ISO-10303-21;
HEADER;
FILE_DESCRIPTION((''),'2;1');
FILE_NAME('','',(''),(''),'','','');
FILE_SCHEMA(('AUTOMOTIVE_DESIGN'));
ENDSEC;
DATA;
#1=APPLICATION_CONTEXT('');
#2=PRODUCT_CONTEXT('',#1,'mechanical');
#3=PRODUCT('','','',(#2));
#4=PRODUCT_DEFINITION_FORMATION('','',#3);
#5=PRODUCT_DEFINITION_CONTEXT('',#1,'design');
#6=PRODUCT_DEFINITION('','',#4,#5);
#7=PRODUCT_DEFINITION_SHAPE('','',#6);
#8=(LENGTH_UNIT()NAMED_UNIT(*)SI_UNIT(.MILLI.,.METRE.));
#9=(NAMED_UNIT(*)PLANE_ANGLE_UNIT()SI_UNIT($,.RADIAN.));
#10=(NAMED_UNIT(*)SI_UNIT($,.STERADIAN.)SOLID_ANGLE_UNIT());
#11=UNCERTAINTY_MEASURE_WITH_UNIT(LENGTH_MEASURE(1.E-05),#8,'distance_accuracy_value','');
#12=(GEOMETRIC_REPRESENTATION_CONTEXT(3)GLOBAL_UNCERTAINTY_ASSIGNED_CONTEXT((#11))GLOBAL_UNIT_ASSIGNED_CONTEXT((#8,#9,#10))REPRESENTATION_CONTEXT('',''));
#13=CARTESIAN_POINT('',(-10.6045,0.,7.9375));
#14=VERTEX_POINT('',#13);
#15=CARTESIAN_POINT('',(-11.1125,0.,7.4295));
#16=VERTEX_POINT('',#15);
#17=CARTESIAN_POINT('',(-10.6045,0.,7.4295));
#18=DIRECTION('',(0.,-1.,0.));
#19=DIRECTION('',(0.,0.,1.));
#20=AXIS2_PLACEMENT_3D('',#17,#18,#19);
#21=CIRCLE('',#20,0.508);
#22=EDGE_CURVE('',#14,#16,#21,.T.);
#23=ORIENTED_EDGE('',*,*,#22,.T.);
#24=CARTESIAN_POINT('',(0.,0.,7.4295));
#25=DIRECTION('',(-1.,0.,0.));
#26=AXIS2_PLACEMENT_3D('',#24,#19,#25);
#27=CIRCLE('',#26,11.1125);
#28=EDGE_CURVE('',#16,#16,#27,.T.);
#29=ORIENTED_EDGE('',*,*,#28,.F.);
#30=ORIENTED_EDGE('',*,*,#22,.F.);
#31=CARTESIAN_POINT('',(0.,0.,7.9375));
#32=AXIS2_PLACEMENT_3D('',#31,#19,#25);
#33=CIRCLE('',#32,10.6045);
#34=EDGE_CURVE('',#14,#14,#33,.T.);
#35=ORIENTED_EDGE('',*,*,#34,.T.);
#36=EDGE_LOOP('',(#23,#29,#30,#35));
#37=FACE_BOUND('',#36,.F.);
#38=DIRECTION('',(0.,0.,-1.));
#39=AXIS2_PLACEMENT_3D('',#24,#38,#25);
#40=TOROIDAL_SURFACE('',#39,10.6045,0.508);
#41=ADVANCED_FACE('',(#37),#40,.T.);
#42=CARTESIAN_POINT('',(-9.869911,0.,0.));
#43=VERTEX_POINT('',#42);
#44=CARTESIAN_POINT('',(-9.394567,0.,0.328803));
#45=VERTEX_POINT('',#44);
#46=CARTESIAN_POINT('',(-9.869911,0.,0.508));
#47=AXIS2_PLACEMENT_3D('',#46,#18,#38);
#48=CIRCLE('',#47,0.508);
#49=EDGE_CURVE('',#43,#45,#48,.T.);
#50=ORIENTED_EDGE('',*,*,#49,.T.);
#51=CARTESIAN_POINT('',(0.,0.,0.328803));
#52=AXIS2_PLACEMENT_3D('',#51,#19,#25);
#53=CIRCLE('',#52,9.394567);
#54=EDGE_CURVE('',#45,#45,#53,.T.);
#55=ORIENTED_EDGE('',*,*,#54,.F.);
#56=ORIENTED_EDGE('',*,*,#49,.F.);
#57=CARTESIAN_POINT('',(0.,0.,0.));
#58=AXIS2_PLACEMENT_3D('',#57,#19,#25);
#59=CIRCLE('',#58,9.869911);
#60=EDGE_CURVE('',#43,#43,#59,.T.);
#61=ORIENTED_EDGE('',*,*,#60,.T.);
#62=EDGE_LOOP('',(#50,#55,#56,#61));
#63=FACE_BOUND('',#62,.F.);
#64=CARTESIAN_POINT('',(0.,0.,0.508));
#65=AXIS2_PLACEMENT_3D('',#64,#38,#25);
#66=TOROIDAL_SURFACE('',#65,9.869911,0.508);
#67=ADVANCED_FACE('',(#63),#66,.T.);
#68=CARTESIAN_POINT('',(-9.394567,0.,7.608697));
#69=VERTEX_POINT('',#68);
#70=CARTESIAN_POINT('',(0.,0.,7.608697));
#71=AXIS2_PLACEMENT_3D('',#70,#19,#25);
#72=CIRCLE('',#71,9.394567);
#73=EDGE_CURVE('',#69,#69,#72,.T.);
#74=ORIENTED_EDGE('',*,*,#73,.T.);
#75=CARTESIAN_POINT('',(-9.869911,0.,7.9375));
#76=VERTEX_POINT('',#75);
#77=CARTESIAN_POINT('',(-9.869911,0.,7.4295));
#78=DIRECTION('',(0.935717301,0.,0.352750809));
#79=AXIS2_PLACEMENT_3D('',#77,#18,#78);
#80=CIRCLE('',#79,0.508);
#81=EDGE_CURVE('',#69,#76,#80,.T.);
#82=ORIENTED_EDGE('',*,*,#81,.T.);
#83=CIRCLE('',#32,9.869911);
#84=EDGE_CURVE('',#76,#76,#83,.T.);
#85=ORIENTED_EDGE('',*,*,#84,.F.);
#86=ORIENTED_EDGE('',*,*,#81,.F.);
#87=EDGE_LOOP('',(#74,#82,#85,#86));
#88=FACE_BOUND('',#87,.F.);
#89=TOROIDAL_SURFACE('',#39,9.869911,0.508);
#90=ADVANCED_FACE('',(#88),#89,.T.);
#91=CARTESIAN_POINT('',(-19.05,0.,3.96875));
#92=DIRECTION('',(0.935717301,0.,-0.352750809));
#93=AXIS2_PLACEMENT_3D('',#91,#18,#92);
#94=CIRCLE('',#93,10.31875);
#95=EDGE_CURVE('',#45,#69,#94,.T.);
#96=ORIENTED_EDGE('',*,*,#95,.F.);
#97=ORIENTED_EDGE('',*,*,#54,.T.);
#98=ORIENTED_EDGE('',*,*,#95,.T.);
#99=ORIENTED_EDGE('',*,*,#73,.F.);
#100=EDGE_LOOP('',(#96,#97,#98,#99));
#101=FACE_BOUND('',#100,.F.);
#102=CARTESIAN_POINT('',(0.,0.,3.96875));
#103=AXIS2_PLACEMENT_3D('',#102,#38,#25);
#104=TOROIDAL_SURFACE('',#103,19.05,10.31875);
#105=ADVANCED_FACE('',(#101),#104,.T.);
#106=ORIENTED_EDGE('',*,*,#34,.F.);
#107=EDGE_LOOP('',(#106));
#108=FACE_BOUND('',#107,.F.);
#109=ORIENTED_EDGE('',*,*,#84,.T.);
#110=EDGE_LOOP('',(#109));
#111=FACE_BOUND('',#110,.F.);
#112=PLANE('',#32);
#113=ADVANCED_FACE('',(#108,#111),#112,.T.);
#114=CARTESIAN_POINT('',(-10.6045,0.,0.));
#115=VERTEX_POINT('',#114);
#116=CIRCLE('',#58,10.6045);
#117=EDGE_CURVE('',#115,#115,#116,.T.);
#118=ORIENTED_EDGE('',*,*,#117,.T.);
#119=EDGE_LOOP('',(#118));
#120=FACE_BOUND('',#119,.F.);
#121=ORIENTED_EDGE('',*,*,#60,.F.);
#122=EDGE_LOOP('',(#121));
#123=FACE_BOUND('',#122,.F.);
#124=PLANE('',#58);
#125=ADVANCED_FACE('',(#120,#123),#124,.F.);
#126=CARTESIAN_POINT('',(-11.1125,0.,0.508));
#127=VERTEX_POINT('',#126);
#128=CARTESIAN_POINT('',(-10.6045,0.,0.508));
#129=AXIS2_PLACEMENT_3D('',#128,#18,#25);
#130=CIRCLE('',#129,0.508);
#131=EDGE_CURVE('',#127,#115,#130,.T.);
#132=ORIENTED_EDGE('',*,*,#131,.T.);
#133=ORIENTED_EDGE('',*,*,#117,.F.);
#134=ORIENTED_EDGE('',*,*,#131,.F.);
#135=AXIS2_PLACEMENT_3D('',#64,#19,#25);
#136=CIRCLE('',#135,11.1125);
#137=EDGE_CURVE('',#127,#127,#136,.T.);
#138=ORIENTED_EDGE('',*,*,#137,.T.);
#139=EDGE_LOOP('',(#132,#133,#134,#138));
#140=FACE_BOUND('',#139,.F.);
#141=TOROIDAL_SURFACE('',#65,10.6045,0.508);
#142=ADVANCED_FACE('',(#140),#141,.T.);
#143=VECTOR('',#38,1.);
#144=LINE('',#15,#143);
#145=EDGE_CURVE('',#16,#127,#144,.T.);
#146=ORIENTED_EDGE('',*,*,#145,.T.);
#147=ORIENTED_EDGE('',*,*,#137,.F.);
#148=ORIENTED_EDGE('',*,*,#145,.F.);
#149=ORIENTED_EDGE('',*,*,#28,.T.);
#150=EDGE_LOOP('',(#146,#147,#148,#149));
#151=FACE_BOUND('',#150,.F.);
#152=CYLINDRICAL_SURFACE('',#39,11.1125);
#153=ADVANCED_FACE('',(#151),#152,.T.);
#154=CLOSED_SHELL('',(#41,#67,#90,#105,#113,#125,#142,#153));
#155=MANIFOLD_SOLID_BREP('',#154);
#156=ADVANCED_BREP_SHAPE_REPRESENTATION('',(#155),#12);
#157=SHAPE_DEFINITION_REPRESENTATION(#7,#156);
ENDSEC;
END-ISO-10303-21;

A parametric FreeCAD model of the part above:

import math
import FreeCAD as App
import Part
import Sketcher
Q = App.Units.Quantity

doc = App.newDocument("Part")
body = doc.addObject("PartDesign::Body", "Body")

# Sketch on XZ plane
sketch1 = body.newObject("Sketcher::SketchObject", "Sketch")
sketch1.AttachmentSupport = (doc.getObject("XZ_Plane"), [""])
sketch1.MapMode = "FlatFace"
sketch1.addGeometry(Part.ArcOfCircle(Part.Circle(App.Vector(-9.9, 7.4, 0), App.Vector(0, 0, 1), 0.5), math.radians(21), math.radians(90)), False)
sketch1.addGeometry(Part.LineSegment(App.Vector(-9.9, 7.9, 0), App.Vector(-10.6, 7.9, 0)), False)
sketch1.addGeometry(Part.ArcOfCircle(Part.Circle(App.Vector(-10.6, 7.4, 0), App.Vector(0, 0, 1), 0.5), math.radians(90), math.radians(180)), False)
sketch1.addGeometry(Part.LineSegment(App.Vector(-11.1, 7.4, 0), App.Vector(-11.1, 0.5, 0)), False)
sketch1.addGeometry(Part.ArcOfCircle(Part.Circle(App.Vector(-10.6, 0.5, 0), App.Vector(0, 0, 1), 0.5), math.radians(180), math.radians(270)), False)
sketch1.addGeometry(Part.LineSegment(App.Vector(-10.6, 0, 0), App.Vector(-9.9, 0, 0)), False)
sketch1.addGeometry(Part.ArcOfCircle(Part.Circle(App.Vector(-9.9, 0.5, 0), App.Vector(0, 0, 1), 0.5), math.radians(-90), math.radians(-21)), False)
sketch1.addGeometry(Part.ArcOfCircle(Part.Circle(App.Vector(-19.1, 4, 0), App.Vector(0, 0, 1), 10.3), math.radians(-21), math.radians(21)), False)
sketch1.addConstraint(Sketcher.Constraint("Tangent", 0, 2, 1, 1))
sketch1.addConstraint(Sketcher.Constraint("Tangent", 1, 2, 2, 1))
sketch1.addConstraint(Sketcher.Constraint("Tangent", 2, 2, 3, 1))
sketch1.addConstraint(Sketcher.Constraint("Tangent", 3, 2, 4, 1))
sketch1.addConstraint(Sketcher.Constraint("Tangent", 4, 2, 5, 1))
sketch1.addConstraint(Sketcher.Constraint("Tangent", 5, 2, 6, 1))
sketch1.addConstraint(Sketcher.Constraint("Tangent", 6, 2, 7, 1))
sketch1.addConstraint(Sketcher.Constraint("Tangent", 7, 2, 0, 1))
sketch1.addConstraint(Sketcher.Constraint("Horizontal", 1))
sketch1.addConstraint(Sketcher.Constraint("Vertical", 3))
sketch1.addConstraint(Sketcher.Constraint("Horizontal", 5))
sketch1.addConstraint(Sketcher.Constraint("Equal", 0, 2))
sketch1.addConstraint(Sketcher.Constraint("Equal", 2, 4))
sketch1.addConstraint(Sketcher.Constraint("Equal", 4, 6))
sketch1.addConstraint(Sketcher.Constraint("PointOnObject", 4, 2, -1))
sketch1.addConstraint(Sketcher.Constraint("Vertical", 0, 3, 6, 3))
sketch1.addConstraint(Sketcher.Constraint("Radius", 0, Q("0.02 in")))
sketch1.addConstraint(Sketcher.Constraint("Radius", 7, Q("0.40625 in")))
sketch1.addConstraint(Sketcher.Constraint("DistanceX", 7, 3, -1, 1, Q("0.75 in")))
sketch1.addConstraint(Sketcher.Constraint("DistanceY", 3, 2, 3, 1, Q("0.2725 in")))
sketch1.addConstraint(Sketcher.Constraint("DistanceX", 2, 2, -1, 1, Q("0.4375 in")))
revolution = body.newObject("PartDesign::Revolution", "Revolution")
revolution.Profile = sketch1
revolution.ReferenceAxis = (sketch1, ["V_Axis"])
revolution.Angle = 360

doc.recompute()
